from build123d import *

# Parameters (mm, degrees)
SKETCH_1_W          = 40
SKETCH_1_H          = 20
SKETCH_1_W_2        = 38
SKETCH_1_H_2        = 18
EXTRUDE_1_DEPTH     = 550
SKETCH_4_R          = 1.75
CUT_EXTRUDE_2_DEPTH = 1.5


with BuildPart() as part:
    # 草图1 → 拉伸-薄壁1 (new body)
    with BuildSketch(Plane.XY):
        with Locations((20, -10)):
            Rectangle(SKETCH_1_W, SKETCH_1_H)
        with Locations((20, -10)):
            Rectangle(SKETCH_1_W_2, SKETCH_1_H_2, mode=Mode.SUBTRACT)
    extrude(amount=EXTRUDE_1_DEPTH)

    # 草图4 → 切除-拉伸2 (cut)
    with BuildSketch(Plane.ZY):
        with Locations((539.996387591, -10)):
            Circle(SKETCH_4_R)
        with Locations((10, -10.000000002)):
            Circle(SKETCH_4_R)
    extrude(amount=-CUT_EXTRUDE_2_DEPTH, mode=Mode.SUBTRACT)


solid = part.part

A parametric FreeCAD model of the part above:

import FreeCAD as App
import Part
import Sketcher
from FreeCAD import Vector
Q = App.Units.Quantity


def add_polygon(sketch, points):
    """Adds a closed chain of lines whose ends are joined by coincident constraints."""
    first, n = sketch.GeometryCount, len(points)
    for a, b in zip(points, points[1:] + points[:1]):
        sketch.addGeometry(Part.LineSegment(App.Vector(*a, 0), App.Vector(*b, 0)), False)
    for i in range(n):
        sketch.addConstraint(Sketcher.Constraint("Coincident", first + i, 2, first + (i + 1) % n, 1))

doc = App.newDocument("Part")
params = doc.addObject("Spreadsheet::Sheet", "Params")
for row, (alias, value) in enumerate([
    ("sketch1_width", "40 mm"),
    ("sketch1_width2", "38 mm"),
    ("sketch1_height", "20 mm"),
    ("sketch1_height2", "18 mm"),
    ("pad1_length", "550 mm"),
    ("sketch2_diameter", "3.5 mm"),
    ("pocket1_length", "1.5 mm"),
], start=1):
    params.set(f"A{row}", alias)
    params.set(f"B{row}", "=" + value)
    params.setAlias(f"B{row}", alias)

body = doc.addObject("PartDesign::Body", "Body")

sketch1 = doc.addObject("Sketcher::SketchObject", "Sketch")
body.addObject(sketch1)
sketch1.AttachmentSupport = (doc.XY_Plane, [""])
sketch1.MapMode = "FlatFace"
add_polygon(sketch1, [(0, 0), (0, -20), (40, -20), (40, 0)])
add_polygon(sketch1, [(39, -19), (1, -19), (1, -1), (39, -1)])
sketch1.addConstraint([
    Sketcher.Constraint("Vertical", 0),
    Sketcher.Constraint("Horizontal", 1),
    Sketcher.Constraint("Vertical", 2),
    Sketcher.Constraint("Horizontal", 3),
    Sketcher.Constraint("Horizontal", 4),
    Sketcher.Constraint("Vertical", 5),
    Sketcher.Constraint("Horizontal", 6),
    Sketcher.Constraint("Vertical", 7),
    Sketcher.Constraint("Coincident", 3, 2, -1, 1),
    Sketcher.Constraint("DistanceX", 1, 1, 1, 2, Q("40 mm")),
    Sketcher.Constraint("DistanceX", 4, 2, 4, 1, Q("38 mm")),
    Sketcher.Constraint("DistanceY", 0, 2, 0, 1, Q("20 mm")),
    Sketcher.Constraint("DistanceY", 5, 1, 5, 2, Q("18 mm")),
    Sketcher.Constraint("DistanceX", -1, 1, 4, 2, Q("1 mm")),
    Sketcher.Constraint("DistanceY", 4, 2, -1, 1, Q("19 mm")),
])
sketch1.setExpression("Constraints[17]", "Params.sketch1_width")
sketch1.setExpression("Constraints[18]", "Params.sketch1_width2")
sketch1.setExpression("Constraints[19]", "Params.sketch1_height")
sketch1.setExpression("Constraints[20]", "Params.sketch1_height2")
pad1 = doc.addObject("PartDesign::Pad", "Pad")
body.addObject(pad1)
pad1.Profile = sketch1
pad1.setExpression("Length", "Params.pad1_length")

sketch2 = doc.addObject("Sketcher::SketchObject", "Sketch001")
body.addObject(sketch2)
sketch2.AttachmentSupport = (doc.YZ_Plane, [""])
sketch2.MapMode = "FlatFace"
sketch2.addGeometry([
    Part.Circle(Vector(-10, 539.996388, 0), Vector(0, 0, 1), 1.75),
    Part.Circle(Vector(-10, 10, 0), Vector(0, 0, 1), 1.75),
], False)
sketch2.addConstraint([
    Sketcher.Constraint("Equal", 0, 1),
    Sketcher.Constraint("Vertical", 0, 3, 1, 3),
    Sketcher.Constraint("Diameter", 0, Q("3.5 mm")),
    Sketcher.Constraint("DistanceX", 0, 3, -1, 1, Q("10 mm")),
    Sketcher.Constraint("DistanceY", -1, 1, 1, 3, Q("10 mm")),
    Sketcher.Constraint("DistanceY", -1, 1, 0, 3, Q("539.996388 mm")),
])
sketch2.setExpression("Constraints[2]", "Params.sketch2_diameter")
pocket1 = doc.addObject("PartDesign::Pocket", "Pocket")
body.addObject(pocket1)
pocket1.Profile = sketch2
pocket1.setExpression("Length", "Params.pocket1_length")
pocket1.Reversed = True

doc.recompute()
